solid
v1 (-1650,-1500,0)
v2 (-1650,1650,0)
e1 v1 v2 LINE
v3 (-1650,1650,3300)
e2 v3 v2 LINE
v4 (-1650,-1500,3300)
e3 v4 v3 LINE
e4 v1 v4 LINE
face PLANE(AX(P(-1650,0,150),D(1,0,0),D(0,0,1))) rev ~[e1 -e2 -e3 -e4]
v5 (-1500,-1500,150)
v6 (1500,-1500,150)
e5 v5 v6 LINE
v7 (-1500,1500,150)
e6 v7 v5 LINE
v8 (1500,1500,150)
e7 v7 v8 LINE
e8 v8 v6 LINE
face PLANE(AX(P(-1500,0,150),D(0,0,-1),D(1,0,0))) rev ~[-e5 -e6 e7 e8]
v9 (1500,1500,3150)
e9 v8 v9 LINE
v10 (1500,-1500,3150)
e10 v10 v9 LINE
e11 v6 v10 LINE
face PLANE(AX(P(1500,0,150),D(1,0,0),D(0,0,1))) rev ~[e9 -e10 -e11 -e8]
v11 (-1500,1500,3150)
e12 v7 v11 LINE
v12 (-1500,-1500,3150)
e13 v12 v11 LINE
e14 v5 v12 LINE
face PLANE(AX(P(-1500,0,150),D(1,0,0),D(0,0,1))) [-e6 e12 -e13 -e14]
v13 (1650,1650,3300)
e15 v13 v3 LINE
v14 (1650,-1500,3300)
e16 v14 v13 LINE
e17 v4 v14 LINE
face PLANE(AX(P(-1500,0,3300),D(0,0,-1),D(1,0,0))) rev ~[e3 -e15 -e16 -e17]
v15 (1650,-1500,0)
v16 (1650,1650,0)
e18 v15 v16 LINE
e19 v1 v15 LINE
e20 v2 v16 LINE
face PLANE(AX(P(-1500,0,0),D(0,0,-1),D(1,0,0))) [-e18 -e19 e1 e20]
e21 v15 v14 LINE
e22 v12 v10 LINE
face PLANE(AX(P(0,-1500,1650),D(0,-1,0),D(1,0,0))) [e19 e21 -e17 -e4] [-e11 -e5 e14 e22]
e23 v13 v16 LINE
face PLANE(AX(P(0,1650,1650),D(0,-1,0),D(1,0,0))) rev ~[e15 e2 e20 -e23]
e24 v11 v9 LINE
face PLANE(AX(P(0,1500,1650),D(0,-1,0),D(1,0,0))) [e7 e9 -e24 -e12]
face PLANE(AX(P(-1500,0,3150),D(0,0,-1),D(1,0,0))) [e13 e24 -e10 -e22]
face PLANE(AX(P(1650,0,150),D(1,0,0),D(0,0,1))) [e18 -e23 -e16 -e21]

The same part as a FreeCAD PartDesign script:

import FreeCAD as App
import Part
import Sketcher

V = App.Vector
Q = App.Units.Quantity


def faces_at(feature, points):
    """Names of the faces that lie closest to the given points."""
    faces = feature.Shape.Faces
    near = lambda p: min(range(len(faces)), key=lambda i: faces[i].distToShape(Part.Vertex(*p))[0])
    return sorted({f"Face{near(p) + 1}" for p in points})


def add_polygon(sketch, points):
    """Adds a closed chain of lines whose ends are joined by coincident constraints."""
    first, n = sketch.GeometryCount, len(points)
    for a, b in zip(points, points[1:] + points[:1]):
        sketch.addGeometry(Part.LineSegment(App.Vector(*a, 0), App.Vector(*b, 0)), False)
    for i in range(n):
        sketch.addConstraint(Sketcher.Constraint("Coincident", first + i, 2, first + (i + 1) % n, 1))

doc = App.newDocument("Part")
params = doc.addObject("Spreadsheet::Sheet", "Params")
for row, (alias, value) in enumerate([
    ("sketch1_width", "3000 mm"),
    ("pad1_length", "3000 mm"),
    ("thickness_wall", "150 mm"),
], start=1):
    params.set(f"A{row}", alias)
    params.set(f"B{row}", "=" + value)
    params.setAlias(f"B{row}", alias)

body = doc.addObject("PartDesign::Body", "Body")

# Sketch on XZ plane
sketch1 = body.newObject("Sketcher::SketchObject", "Sketch")
sketch1.AttachmentSupport = (doc.getObject("XZ_Plane"), [""])
sketch1.MapMode = "FlatFace"
add_polygon(sketch1, [(-1500, 3150), (-1500, 150), (1500, 150), (1500, 3150)])  # lines 0-3
sketch1.addConstraint([
    Sketcher.Constraint("Vertical", 0),
    Sketcher.Constraint("Horizontal", 1),
    Sketcher.Constraint("Vertical", 2),
    Sketcher.Constraint("Horizontal", 3),
    Sketcher.Constraint("Equal", 3, 0),
    Sketcher.Constraint("DistanceX", 1, 1, 1, 2, Q("3000 mm")),
    Sketcher.Constraint("DistanceX", 0, 2, -1, 1, Q("1500 mm")),
    Sketcher.Constraint("DistanceY", -1, 1, 0, 2, Q("150 mm")),
])
sketch1.setExpression("Constraints[9]", "Params.sketch1_width")
pad1 = body.newObject("PartDesign::Pad", "Pad")
pad1.Profile = sketch1
pad1.setExpression("Length", "Params.pad1_length")
pad1.Midplane = True
doc.recompute()

thickness = body.newObject("PartDesign::Thickness", "Thickness")
thickness.Base = (pad1, faces_at(pad1, [(0, -1500, 1650)]))
thickness.setExpression("Value", "Params.thickness_wall")
thickness.Reversed = False
thickness.Join = "Intersection"

doc.recompute()
